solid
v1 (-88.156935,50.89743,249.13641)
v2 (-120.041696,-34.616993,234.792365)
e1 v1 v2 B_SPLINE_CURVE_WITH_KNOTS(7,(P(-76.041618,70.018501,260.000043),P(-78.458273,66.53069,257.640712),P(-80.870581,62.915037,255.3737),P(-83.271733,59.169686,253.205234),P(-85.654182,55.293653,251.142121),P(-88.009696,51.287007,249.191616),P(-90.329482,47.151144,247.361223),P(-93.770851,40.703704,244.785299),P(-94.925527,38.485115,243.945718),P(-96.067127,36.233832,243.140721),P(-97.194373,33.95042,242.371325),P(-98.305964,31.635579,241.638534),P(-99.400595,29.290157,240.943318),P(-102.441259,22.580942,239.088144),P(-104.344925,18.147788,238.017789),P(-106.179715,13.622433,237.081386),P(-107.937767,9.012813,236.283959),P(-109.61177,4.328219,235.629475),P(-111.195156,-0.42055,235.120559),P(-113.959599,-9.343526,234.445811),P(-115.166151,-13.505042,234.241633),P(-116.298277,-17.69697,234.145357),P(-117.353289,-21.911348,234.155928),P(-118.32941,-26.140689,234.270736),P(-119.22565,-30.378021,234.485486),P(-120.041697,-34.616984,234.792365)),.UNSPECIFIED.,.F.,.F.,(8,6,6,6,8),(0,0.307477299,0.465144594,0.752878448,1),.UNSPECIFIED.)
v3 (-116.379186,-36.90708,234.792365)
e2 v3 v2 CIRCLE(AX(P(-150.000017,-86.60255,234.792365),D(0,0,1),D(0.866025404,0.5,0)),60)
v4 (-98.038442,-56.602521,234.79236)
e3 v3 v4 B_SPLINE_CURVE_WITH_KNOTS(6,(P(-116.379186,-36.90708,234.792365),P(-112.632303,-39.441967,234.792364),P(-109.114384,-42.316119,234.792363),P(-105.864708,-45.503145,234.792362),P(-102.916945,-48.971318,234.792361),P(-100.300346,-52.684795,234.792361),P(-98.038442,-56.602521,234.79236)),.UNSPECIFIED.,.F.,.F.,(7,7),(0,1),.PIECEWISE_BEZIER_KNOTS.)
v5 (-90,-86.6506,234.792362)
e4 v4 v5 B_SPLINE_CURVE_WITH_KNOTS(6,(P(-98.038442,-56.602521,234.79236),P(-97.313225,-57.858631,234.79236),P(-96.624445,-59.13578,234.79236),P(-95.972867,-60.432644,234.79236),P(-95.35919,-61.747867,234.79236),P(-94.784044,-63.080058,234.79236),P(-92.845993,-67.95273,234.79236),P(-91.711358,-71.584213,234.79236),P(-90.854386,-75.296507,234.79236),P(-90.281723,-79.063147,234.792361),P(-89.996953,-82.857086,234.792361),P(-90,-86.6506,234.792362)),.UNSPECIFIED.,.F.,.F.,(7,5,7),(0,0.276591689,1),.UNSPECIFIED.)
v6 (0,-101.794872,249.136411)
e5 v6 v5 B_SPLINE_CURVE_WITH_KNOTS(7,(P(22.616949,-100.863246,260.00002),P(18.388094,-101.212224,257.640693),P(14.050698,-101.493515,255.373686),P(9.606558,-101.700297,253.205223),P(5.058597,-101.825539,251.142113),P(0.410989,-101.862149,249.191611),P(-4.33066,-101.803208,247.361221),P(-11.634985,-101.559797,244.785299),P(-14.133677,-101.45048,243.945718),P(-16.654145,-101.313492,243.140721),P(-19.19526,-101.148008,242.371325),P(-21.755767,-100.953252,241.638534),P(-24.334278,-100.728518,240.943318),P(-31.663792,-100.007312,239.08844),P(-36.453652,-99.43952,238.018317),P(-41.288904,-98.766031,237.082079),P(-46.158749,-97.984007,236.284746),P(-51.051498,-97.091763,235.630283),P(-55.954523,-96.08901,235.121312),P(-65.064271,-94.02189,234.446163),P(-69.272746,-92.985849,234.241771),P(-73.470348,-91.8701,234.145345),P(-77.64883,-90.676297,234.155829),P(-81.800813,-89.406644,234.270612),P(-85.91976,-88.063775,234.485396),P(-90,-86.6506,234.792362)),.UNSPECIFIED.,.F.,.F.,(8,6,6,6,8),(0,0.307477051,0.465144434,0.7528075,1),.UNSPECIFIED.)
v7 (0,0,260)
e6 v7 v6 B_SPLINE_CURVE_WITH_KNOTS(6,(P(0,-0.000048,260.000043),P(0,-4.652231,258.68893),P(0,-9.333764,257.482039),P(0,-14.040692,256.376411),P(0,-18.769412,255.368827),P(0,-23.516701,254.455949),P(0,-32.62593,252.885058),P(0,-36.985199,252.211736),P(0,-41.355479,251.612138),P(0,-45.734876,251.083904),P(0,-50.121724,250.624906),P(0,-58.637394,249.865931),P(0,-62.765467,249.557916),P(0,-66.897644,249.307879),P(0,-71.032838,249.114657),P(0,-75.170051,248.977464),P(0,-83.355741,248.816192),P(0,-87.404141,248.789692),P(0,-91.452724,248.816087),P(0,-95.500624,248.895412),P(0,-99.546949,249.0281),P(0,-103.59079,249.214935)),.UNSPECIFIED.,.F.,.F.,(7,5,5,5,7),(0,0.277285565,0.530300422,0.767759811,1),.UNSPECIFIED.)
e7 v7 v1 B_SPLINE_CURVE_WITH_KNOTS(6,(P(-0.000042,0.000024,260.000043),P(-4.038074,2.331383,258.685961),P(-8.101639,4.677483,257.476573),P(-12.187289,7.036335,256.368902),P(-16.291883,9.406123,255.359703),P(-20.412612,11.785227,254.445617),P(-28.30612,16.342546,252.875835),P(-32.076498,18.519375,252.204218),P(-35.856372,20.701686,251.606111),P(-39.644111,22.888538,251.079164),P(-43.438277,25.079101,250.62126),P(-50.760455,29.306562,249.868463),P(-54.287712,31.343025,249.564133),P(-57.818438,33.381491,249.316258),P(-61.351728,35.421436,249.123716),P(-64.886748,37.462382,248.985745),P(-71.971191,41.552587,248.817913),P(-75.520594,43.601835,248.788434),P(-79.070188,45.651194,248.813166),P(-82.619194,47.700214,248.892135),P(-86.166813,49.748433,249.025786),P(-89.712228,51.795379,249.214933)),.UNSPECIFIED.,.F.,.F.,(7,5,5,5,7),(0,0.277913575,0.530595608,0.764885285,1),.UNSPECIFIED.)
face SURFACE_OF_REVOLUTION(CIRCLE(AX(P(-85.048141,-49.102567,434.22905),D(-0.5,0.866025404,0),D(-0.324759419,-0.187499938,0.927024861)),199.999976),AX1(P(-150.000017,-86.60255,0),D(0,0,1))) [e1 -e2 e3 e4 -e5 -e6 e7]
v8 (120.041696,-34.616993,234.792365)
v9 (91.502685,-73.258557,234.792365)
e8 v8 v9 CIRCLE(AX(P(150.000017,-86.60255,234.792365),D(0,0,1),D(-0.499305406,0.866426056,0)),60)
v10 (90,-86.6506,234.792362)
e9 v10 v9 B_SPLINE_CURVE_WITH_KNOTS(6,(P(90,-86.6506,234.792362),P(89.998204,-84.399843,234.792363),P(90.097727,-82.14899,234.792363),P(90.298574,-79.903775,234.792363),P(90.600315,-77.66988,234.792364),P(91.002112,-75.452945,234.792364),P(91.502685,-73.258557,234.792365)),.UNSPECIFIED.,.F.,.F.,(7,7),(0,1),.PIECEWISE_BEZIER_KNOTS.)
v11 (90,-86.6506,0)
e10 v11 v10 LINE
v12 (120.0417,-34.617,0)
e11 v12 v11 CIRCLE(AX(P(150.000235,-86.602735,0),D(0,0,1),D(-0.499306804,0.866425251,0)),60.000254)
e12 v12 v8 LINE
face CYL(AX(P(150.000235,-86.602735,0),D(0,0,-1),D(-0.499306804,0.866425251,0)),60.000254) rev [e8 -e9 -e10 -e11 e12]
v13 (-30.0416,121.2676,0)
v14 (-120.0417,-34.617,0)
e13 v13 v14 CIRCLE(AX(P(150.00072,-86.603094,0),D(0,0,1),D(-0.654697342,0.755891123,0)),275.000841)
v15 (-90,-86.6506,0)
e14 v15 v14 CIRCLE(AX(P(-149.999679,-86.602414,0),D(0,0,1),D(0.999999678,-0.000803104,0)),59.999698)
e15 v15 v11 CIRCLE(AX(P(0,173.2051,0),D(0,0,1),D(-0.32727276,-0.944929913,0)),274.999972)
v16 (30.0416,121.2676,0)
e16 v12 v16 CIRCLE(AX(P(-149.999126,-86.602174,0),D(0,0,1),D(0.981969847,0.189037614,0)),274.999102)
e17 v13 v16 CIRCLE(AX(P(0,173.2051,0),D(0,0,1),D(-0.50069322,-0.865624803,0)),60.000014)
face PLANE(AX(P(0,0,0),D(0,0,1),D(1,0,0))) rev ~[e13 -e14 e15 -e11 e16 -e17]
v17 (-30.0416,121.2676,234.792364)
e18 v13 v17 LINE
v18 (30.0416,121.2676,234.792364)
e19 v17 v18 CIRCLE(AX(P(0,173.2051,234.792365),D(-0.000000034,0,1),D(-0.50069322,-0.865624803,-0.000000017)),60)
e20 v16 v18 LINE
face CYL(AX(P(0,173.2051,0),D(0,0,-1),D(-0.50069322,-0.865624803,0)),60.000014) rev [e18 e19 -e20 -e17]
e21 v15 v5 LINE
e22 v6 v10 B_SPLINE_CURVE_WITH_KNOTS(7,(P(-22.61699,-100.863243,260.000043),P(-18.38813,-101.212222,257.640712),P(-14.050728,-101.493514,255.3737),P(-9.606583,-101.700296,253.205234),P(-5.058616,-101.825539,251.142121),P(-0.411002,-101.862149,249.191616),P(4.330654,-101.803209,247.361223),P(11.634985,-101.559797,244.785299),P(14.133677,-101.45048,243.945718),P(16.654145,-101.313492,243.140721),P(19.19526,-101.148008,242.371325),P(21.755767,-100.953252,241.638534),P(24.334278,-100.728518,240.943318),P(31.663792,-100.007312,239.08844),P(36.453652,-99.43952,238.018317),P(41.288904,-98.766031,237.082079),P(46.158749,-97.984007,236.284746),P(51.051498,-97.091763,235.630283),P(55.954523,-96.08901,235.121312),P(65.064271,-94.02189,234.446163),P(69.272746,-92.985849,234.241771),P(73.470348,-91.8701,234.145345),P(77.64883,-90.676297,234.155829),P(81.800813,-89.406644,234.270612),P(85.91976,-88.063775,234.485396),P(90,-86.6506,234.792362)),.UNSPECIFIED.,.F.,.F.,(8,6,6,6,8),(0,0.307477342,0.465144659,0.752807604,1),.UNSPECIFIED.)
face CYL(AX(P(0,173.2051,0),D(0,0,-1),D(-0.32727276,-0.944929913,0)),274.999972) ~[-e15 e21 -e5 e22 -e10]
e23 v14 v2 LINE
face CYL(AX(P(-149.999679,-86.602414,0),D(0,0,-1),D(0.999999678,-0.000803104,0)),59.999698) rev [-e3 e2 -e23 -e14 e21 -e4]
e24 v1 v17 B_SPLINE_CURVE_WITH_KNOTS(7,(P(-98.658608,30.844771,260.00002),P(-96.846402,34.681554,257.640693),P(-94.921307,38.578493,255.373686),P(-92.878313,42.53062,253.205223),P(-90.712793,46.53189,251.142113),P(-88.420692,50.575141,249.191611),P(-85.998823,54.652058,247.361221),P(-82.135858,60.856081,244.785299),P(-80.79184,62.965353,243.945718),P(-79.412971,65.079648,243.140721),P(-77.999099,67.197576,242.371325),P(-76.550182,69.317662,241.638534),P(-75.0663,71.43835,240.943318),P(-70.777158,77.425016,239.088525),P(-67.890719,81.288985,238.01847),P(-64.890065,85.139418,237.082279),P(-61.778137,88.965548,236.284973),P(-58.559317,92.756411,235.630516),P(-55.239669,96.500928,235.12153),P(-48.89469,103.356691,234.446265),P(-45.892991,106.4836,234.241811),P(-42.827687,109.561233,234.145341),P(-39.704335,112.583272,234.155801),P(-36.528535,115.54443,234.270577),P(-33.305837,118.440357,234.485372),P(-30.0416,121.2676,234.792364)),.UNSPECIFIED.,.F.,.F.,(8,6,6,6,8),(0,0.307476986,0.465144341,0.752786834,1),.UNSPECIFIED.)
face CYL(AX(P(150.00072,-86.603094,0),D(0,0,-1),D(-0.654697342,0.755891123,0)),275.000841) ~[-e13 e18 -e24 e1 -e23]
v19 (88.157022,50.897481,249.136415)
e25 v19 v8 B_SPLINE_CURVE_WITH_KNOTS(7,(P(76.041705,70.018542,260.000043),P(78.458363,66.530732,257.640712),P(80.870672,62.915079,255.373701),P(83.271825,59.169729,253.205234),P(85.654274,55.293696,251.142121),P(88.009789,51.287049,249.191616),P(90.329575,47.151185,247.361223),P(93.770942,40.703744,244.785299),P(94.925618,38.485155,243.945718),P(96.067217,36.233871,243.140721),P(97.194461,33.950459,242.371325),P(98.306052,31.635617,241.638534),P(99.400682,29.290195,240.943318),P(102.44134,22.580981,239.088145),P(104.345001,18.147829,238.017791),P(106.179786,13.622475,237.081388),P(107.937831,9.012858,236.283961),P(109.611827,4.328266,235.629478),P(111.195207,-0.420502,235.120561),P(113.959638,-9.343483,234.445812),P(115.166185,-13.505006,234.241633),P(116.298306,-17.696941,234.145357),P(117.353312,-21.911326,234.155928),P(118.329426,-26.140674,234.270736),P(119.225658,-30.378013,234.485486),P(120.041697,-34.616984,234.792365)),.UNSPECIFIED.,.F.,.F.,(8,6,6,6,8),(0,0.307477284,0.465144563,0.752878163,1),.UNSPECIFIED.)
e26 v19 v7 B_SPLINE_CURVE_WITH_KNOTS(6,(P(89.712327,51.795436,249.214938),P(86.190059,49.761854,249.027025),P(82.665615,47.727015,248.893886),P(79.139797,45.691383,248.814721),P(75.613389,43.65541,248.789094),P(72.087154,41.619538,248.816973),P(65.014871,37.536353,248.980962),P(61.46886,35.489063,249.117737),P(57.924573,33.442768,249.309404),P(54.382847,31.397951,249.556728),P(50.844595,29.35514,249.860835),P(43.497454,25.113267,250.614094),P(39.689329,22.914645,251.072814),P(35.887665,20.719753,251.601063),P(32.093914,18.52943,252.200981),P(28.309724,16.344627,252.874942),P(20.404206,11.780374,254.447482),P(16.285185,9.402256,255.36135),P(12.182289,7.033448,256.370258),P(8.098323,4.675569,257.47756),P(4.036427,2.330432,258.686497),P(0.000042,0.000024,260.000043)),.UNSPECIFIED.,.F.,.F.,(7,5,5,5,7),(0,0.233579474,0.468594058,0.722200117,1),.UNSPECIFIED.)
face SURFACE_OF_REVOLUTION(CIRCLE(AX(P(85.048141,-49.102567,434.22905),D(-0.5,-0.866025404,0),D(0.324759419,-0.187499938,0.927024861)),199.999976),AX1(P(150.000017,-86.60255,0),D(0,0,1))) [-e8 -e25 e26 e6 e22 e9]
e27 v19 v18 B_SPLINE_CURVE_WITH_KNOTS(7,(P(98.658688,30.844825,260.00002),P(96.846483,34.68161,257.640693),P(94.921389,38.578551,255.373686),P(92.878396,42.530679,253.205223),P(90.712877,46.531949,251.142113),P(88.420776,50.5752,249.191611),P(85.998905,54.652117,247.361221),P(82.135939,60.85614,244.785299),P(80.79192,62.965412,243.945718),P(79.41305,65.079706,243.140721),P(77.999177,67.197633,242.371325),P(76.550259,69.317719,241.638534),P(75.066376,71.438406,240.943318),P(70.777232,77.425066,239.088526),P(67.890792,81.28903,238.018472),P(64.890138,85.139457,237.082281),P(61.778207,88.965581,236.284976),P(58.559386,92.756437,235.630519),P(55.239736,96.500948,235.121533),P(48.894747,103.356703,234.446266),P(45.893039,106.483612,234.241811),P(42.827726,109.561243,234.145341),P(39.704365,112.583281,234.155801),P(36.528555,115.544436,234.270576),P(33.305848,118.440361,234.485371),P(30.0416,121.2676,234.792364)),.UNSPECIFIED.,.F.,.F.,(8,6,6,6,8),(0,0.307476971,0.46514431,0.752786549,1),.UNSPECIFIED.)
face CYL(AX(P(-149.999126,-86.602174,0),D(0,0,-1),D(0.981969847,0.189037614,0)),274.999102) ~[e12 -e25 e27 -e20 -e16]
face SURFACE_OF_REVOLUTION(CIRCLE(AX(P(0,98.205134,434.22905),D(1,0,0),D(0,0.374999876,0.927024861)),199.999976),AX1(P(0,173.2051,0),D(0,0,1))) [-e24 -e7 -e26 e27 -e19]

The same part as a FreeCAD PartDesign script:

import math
import FreeCAD as App
import Part
import Sketcher

doc = App.newDocument("Part")
params = doc.addObject("Spreadsheet::Sheet", "Params")
for row, (alias, value) in enumerate([
    ("sketch1_radius", "60 mm"),
    ("sketch1_radius2", "275 mm"),
    ("pad1_length", "260 mm"),
    ("sketch2_radius", "200 mm"),
    ("sketch2_width", "75 mm"),
    ("groove_angle", "360 deg"),
], start=1):
    params.set(f"A{row}", alias)
    params.set(f"B{row}", "=" + value)
    params.setAlias(f"B{row}", alias)

body = doc.addObject("PartDesign::Body", "Body")

sketch1 = body.newObject("Sketcher::SketchObject", "Sketch")
sketch1.AttachmentSupport = (doc.getObject("XY_Plane"), [""])
sketch1.MapMode = "FlatFace"
sketch1.addGeometry([
    Part.ArcOfCircle(Part.Circle(App.Vector(150, -87, 0), App.Vector(0, 0, 1), 60), math.radians(120), math.radians(180)),
    Part.ArcOfCircle(Part.Circle(App.Vector(-150, -87, 0), App.Vector(0, 0, 1), 275), math.radians(11), math.radians(49)),
    Part.ArcOfCircle(Part.Circle(App.Vector(0, 173, 0), App.Vector(0, 0, 1), 60), math.radians(-120), math.radians(-60)),
    Part.ArcOfCircle(Part.Circle(App.Vector(150, -87, 0), App.Vector(0, 0, 1), 275), math.radians(131), math.radians(169)),
    Part.ArcOfCircle(Part.Circle(App.Vector(-150, -87, 0), App.Vector(0, 0, 1), 60), math.radians(0), math.radians(60)),
    Part.ArcOfCircle(Part.Circle(App.Vector(0, 173, 0), App.Vector(0, 0, 1), 275), math.radians(-109), math.radians(-71)),
], False)
sketch1.addConstraint([
    Sketcher.Constraint("Coincident", 0, 1, 1, 1),
    Sketcher.Constraint("Coincident", 1, 2, 2, 2),
    Sketcher.Constraint("Coincident", 2, 1, 3, 1),
    Sketcher.Constraint("Coincident", 3, 2, 4, 2),
    Sketcher.Constraint("Coincident", 4, 1, 5, 1),
    Sketcher.Constraint("Coincident", 5, 2, 0, 2),
    Sketcher.Constraint("Coincident", 3, 3, 0, 3),
    Sketcher.Constraint("Coincident", 4, 3, 1, 3),
    Sketcher.Constraint("Coincident", 5, 3, 2, 3),
    Sketcher.Constraint("Equal", 0, 2),
    Sketcher.Constraint("Equal", 1, 3),
    Sketcher.Constraint("Equal", 2, 4),
    Sketcher.Constraint("Equal", 3, 5),
    Sketcher.Constraint("Symmetric", 0, 3, 1, 3, -2),
    Sketcher.Constraint("PointOnObject", 2, 3, -2),
    Sketcher.Constraint("Radius", 0, 60.0),
    Sketcher.Constraint("Radius", 1, 275.0),
    Sketcher.Constraint("DistanceX", 1, 3, 0, 3, 300.0),
    Sketcher.Constraint("DistanceX", 1, 2, 0, 1, 90.0),
    Sketcher.Constraint("DistanceY", -1, 1, 2, 3, 173.205),
])
sketch1.setExpression("Constraints[15]", "Params.sketch1_radius")
sketch1.setExpression("Constraints[16]", "Params.sketch1_radius2")
pad1 = body.newObject("PartDesign::Pad", "Pad")
pad1.Profile = sketch1
pad1.setExpression("Length", "Params.pad1_length")

sketch2 = body.newObject("Sketcher::SketchObject", "Sketch001")
sketch2.AttachmentSupport = (doc.getObject("YZ_Plane"), [""])
sketch2.MapMode = "FlatFace"
sketch2.addGeometry([
    Part.ArcOfCircle(Part.Circle(App.Vector(98, 434, 0), App.Vector(0, 0, 1), 200), math.radians(68), math.radians(292)),
    Part.LineSegment(App.Vector(173, 249, 0), App.Vector(173, 620, 0)),
], False)
sketch2.addGeometry(Part.LineSegment(App.Vector(173, 249, 0), App.Vector(173, 620, 0)), True)
sketch2.addConstraint([
    Sketcher.Constraint("Coincident", 0, 1, 1, 2),
    Sketcher.Constraint("Coincident", 1, 1, 0, 2),
    Sketcher.Constraint("Vertical", 1),
    Sketcher.Constraint("Vertical", 2),
    Sketcher.Constraint("Coincident", 2, 1, 1, 1),
    Sketcher.Constraint("Equal", 1, 2),
    Sketcher.Constraint("Radius", 0, 200.0),
    Sketcher.Constraint("DistanceX", 0, 3, 0, 1, 75.0),
    Sketcher.Constraint("DistanceX", -1, 1, 0, 3, 98.205),
    Sketcher.Constraint("DistanceY", -1, 1, 0, 3, 434.229),
])
sketch2.setExpression("Constraints[6]", "Params.sketch2_radius")
sketch2.setExpression("Constraints[7]", "Params.sketch2_width")
groove = body.newObject("PartDesign::Groove", "Groove")
groove.Profile = sketch2
groove.ReferenceAxis = (sketch2, ["Axis0"])
groove.setExpression("Angle", "Params.groove_angle")
doc.recompute()

polarpattern = body.newObject("PartDesign::PolarPattern", "PolarPattern")
polarpattern.Originals = [groove]
polarpattern.Axis = (doc.getObject("Z_Axis"), [""])
polarpattern.Angle = 360
polarpattern.Occurrences = 3
body.Tip = polarpattern

doc.recompute()
